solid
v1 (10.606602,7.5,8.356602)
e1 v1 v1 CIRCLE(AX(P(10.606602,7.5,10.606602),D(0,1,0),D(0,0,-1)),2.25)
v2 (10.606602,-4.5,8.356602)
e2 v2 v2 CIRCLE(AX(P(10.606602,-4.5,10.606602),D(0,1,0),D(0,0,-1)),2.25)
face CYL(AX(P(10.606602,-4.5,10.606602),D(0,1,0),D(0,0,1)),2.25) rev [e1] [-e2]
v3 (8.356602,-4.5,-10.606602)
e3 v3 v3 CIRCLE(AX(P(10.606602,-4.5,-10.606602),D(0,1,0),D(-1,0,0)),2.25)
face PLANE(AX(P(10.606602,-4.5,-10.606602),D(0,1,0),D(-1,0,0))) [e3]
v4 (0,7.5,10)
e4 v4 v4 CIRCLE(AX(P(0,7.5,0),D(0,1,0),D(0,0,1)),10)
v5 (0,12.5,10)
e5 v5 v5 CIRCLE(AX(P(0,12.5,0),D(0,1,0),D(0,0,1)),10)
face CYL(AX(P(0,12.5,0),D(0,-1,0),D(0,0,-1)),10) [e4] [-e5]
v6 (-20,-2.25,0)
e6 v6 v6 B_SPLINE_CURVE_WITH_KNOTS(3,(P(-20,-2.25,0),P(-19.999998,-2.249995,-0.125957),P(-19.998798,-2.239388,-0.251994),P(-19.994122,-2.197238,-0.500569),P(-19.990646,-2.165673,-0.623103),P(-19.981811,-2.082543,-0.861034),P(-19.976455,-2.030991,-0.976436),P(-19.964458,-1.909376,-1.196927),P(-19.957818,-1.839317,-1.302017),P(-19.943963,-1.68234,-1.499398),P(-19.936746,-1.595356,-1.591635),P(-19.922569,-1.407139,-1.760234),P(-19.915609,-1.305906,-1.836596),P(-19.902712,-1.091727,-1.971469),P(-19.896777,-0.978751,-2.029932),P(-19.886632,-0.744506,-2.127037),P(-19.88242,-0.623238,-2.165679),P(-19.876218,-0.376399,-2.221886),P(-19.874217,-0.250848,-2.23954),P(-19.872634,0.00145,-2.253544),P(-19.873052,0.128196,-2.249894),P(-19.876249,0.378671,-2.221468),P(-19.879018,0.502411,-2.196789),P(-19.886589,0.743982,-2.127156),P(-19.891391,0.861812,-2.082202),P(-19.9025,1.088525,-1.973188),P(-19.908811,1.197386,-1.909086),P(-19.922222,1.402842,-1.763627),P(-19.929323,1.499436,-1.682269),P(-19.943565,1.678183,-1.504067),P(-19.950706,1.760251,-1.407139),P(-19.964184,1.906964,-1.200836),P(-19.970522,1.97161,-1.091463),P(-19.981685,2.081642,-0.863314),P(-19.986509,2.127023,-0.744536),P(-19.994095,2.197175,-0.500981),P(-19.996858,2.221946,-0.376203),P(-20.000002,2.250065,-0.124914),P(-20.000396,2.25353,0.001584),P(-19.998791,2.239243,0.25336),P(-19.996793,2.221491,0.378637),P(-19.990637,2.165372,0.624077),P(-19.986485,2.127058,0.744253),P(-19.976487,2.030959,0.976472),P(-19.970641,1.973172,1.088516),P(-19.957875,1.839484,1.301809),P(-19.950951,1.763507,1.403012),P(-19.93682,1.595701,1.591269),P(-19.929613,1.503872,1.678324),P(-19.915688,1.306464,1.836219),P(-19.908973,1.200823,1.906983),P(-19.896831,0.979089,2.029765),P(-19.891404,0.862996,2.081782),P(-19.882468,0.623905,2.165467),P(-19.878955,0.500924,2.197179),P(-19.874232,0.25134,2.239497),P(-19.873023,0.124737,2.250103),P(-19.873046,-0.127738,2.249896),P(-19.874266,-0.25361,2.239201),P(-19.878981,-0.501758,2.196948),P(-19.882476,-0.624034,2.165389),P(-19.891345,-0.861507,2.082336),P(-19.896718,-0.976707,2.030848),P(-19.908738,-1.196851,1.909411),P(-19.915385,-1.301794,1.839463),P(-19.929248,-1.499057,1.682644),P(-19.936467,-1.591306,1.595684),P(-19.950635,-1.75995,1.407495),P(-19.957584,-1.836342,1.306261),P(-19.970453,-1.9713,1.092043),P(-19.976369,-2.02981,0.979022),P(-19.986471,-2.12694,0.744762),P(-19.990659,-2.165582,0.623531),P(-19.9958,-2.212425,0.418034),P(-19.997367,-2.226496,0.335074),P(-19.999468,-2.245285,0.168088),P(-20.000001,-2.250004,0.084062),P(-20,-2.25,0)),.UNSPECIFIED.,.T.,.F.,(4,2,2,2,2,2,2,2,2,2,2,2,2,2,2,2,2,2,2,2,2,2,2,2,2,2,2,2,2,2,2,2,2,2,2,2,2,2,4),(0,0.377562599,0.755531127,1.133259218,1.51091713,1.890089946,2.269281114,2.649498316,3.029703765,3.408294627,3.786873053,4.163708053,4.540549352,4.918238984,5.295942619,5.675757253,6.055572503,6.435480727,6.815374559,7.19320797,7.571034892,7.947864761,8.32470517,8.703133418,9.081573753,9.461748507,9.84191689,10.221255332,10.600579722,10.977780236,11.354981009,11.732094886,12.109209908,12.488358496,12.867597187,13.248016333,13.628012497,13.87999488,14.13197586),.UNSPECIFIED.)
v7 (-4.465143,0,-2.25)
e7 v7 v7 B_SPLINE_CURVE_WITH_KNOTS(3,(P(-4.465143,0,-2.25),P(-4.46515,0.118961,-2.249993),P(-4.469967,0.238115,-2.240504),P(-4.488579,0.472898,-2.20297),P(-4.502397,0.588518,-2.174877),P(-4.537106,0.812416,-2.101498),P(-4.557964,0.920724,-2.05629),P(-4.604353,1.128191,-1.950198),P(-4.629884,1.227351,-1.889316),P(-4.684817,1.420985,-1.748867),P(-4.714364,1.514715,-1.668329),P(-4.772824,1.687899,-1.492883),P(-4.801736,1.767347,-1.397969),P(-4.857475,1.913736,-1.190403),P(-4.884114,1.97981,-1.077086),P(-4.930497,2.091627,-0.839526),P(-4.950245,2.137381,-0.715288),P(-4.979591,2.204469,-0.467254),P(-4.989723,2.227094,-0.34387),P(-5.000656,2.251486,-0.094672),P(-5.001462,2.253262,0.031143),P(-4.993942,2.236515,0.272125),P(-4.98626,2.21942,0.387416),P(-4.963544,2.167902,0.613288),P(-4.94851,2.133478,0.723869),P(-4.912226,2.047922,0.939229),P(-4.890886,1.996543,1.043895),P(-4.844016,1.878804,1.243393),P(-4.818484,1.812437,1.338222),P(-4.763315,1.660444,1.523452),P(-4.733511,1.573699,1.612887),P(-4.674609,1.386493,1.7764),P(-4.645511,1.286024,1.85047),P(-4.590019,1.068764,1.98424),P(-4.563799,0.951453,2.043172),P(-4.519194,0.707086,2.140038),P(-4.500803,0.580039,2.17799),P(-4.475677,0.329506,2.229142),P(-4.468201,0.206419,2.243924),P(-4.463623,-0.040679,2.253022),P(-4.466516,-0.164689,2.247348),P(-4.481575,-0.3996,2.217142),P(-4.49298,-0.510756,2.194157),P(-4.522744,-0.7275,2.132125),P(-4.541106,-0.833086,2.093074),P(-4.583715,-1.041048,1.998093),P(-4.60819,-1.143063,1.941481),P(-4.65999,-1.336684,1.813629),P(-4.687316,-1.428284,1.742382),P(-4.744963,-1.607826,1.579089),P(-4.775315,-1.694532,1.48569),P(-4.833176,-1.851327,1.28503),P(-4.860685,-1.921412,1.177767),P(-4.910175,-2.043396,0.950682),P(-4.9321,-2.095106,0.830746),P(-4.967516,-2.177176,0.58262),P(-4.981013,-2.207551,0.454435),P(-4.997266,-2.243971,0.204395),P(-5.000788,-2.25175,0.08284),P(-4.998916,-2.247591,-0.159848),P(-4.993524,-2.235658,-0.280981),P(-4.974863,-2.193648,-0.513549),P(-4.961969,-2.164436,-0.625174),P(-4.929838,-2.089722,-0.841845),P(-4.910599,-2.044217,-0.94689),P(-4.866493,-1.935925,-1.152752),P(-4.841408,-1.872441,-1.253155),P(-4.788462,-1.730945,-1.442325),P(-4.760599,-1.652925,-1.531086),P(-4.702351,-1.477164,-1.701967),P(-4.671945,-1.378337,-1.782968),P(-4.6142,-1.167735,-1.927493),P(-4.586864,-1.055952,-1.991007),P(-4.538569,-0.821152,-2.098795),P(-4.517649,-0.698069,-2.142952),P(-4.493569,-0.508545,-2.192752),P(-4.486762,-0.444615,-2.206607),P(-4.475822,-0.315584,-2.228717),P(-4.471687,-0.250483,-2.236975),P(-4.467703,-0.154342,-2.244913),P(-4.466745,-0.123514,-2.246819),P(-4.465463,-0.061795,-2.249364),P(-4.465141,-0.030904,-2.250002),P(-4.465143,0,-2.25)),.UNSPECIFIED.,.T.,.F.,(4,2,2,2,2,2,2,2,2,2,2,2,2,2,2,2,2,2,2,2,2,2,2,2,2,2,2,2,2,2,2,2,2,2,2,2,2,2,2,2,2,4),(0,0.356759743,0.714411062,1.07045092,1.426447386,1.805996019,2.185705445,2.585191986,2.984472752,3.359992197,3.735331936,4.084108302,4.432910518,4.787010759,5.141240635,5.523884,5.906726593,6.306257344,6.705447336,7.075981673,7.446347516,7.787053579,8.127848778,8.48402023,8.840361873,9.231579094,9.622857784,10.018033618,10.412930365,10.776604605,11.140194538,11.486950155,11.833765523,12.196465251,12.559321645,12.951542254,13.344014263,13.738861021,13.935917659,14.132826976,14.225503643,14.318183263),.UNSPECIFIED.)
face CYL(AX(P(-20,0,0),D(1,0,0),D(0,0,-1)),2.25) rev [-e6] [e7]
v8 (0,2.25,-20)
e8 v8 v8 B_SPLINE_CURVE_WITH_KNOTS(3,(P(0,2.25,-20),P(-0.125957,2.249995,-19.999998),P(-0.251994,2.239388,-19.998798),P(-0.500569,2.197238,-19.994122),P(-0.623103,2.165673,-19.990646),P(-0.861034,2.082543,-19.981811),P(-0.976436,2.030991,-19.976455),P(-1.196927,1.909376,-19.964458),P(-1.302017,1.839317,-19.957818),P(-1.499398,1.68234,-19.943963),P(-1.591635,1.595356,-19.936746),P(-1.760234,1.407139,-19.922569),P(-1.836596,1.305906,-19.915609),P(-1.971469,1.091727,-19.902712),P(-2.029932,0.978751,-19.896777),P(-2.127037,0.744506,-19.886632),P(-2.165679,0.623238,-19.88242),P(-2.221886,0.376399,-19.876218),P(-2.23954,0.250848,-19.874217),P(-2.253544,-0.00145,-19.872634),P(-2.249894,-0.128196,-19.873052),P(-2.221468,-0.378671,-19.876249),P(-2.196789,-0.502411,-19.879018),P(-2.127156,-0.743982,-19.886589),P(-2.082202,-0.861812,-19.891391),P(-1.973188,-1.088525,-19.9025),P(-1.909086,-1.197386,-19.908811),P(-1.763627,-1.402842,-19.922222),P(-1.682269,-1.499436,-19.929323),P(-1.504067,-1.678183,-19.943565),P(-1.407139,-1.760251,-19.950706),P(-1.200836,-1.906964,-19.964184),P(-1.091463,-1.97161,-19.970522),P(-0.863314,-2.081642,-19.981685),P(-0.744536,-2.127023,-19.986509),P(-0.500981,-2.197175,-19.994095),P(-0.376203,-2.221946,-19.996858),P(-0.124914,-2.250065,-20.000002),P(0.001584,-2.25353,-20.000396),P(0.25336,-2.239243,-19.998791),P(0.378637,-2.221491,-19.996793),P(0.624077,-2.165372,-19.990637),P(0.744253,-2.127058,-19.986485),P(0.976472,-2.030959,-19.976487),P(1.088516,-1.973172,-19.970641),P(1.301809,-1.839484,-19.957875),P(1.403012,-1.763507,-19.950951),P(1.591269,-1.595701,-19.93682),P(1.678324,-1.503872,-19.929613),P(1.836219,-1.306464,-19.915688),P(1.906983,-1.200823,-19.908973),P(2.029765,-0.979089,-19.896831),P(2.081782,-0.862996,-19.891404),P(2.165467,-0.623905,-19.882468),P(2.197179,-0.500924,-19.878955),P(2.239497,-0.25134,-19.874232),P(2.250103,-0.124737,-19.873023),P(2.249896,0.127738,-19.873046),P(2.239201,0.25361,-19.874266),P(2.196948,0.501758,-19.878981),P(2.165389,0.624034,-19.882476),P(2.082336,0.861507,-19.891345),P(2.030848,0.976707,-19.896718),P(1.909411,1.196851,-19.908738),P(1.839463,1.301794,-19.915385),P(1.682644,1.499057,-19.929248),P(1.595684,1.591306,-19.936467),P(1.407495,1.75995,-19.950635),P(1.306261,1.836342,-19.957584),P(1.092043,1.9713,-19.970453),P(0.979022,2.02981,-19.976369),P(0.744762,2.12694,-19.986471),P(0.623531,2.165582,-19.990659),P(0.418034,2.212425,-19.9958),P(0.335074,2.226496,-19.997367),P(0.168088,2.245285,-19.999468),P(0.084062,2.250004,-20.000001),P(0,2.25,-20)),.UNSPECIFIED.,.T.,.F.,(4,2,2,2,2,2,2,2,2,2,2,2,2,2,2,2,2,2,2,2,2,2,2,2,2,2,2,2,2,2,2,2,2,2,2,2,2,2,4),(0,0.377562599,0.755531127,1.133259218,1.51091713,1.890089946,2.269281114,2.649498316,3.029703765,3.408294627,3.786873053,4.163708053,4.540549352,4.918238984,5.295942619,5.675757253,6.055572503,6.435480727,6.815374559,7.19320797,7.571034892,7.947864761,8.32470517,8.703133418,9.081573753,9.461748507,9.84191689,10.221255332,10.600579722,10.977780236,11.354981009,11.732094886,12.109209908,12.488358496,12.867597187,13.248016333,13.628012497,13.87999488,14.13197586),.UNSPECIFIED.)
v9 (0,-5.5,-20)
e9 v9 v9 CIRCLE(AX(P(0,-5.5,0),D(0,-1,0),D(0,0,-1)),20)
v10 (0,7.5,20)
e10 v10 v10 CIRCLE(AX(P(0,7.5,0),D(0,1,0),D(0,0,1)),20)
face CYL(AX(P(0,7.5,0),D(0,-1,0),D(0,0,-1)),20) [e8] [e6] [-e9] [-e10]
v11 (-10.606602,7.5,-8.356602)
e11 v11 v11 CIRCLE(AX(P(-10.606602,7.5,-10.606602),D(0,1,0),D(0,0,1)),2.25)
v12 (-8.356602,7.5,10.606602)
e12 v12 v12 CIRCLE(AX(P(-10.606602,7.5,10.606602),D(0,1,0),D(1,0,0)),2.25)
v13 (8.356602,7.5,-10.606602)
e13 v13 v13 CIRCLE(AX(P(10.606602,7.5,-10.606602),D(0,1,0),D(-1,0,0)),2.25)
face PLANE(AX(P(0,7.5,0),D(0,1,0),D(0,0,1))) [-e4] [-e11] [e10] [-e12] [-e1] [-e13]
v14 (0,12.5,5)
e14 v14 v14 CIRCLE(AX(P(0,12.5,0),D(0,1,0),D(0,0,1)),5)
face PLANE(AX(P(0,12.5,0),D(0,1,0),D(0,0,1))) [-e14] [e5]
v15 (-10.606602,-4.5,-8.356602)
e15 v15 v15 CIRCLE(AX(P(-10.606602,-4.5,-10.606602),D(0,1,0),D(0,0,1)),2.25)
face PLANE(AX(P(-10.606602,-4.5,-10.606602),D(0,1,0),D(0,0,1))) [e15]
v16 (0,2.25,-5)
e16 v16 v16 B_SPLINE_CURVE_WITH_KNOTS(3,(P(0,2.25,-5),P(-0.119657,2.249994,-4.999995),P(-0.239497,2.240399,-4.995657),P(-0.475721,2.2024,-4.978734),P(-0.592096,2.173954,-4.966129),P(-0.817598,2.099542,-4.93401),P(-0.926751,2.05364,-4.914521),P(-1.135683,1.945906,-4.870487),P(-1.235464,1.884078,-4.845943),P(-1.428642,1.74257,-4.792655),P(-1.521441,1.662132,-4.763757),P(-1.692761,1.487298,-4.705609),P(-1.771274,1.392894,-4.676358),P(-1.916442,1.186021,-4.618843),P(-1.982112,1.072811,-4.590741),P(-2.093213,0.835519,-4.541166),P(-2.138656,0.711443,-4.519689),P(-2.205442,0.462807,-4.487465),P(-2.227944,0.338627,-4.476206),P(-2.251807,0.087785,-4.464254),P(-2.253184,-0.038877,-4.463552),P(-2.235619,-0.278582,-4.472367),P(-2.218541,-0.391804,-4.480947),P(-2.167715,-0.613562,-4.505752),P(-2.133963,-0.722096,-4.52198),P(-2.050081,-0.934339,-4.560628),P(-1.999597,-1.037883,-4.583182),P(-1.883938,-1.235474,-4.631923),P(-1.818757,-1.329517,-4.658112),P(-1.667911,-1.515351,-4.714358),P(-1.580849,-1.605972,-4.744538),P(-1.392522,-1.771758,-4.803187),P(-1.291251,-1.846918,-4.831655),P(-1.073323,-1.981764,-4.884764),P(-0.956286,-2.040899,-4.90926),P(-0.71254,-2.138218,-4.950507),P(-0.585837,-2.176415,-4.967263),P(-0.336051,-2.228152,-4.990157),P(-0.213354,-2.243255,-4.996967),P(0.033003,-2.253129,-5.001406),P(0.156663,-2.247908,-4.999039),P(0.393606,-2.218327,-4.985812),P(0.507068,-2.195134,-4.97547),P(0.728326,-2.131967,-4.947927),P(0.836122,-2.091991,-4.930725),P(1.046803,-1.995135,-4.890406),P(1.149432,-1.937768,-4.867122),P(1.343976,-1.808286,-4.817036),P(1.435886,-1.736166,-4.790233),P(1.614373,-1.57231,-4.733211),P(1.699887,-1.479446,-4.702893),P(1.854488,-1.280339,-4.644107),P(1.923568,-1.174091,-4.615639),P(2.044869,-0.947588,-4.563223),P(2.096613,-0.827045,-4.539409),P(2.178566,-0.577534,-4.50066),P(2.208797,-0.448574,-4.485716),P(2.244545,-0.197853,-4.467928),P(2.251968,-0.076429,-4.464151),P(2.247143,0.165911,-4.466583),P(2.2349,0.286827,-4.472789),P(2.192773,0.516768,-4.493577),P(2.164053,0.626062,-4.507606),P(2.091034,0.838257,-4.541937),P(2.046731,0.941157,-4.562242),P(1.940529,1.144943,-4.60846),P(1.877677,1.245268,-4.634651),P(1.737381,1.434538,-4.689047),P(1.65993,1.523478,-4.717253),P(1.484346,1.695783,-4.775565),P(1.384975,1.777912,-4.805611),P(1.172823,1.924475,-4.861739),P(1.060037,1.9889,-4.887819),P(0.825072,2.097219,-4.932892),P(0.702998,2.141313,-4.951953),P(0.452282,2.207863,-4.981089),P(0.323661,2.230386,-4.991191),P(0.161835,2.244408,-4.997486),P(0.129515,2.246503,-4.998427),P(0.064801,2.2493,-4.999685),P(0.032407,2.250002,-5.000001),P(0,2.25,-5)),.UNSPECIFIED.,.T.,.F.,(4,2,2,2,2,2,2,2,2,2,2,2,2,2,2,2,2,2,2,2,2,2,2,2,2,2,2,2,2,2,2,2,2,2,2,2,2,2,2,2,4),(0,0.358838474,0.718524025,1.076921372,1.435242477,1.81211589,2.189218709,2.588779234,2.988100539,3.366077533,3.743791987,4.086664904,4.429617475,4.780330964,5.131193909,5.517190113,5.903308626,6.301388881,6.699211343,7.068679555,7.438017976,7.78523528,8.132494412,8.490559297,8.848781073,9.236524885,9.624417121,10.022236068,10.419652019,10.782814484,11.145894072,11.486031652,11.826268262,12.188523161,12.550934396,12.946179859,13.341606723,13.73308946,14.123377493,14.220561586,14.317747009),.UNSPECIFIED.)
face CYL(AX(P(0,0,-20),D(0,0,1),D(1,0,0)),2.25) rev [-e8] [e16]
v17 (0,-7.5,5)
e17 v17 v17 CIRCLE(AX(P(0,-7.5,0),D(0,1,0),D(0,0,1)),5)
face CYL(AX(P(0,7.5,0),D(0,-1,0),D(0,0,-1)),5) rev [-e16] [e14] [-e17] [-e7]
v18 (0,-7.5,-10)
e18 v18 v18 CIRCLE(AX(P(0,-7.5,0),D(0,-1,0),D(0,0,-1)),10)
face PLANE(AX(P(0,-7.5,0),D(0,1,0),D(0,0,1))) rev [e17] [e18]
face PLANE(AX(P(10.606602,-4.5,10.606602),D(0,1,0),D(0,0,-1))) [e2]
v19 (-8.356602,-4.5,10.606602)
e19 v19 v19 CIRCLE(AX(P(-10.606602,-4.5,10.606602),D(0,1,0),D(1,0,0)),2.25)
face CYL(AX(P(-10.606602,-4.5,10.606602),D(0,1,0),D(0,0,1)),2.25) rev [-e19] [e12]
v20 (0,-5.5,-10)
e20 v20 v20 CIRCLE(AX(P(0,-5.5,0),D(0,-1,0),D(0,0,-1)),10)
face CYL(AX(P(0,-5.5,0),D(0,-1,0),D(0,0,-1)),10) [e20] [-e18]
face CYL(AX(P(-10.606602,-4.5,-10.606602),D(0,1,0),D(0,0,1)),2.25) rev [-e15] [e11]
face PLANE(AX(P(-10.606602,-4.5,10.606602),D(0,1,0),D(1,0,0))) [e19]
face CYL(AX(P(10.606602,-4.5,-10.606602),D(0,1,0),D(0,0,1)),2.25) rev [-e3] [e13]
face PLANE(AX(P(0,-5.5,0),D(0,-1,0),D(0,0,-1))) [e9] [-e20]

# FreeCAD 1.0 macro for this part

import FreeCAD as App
import Part
import Sketcher

V = App.Vector

doc = App.newDocument("Part")
body = doc.addObject("PartDesign::Body", "Body")

# Sketch on XZ plane
sketch1 = body.newObject("Sketcher::SketchObject", "Sketch")
sketch1.AttachmentSupport = (doc.getObject("XZ_Plane"), [""])
sketch1.MapMode = "FlatFace"
sketch1.addGeometry([
    Part.Circle(V(0, 0, 0), V(0, 0, 1), 20),
    Part.Circle(V(0, 0, 0), V(0, 0, 1), 5),
], False)
sketch1.addConstraint([
    Sketcher.Constraint("Coincident", 0, 3, -1, 1),
    Sketcher.Constraint("Coincident", 1, 3, -1, 1),
    Sketcher.Constraint("Diameter", 0, 40.0),
    Sketcher.Constraint("Diameter", 1, 10.0),
])
pad1 = body.newObject("PartDesign::Pad", "Pad")
pad1.Profile = sketch1
pad1.Length = 15
pad1.Midplane = True

# Sketch on XZ plane
sketch2 = body.newObject("Sketcher::SketchObject", "Sketch001")
sketch2.AttachmentSupport = (doc.getObject("XZ_Plane"), [""])
sketch2.MapMode = "FlatFace"
sketch2.AttachmentOffset = App.Placement(V(0, 0, -7.5), App.Rotation())
sketch2.addGeometry(Part.Circle(V(-10.6, -10.6, 0), V(0, 0, 1), 2.2), False)
sketch2.addConstraint([
    Sketcher.Constraint("Diameter", 0, 4.5),
    Sketcher.Constraint("DistanceX", 0, 3, -1, 1, 10.606602),
    Sketcher.Constraint("DistanceY", 0, 3, -1, 1, 10.606602),
])
pocket1 = body.newObject("PartDesign::Pocket", "Pocket")
pocket1.Profile = sketch2
pocket1.Length = 12
pocket1.Reversed = True
doc.recompute()

polarpattern = body.newObject("PartDesign::PolarPattern", "PolarPattern")
polarpattern.Originals = [pocket1]
polarpattern.Axis = (doc.getObject("Y_Axis"), [""])
polarpattern.Angle = 360
polarpattern.Occurrences = 4
body.Tip = polarpattern

# Sketch on XY plane
sketch3 = body.newObject("Sketcher::SketchObject", "Sketch002")
sketch3.AttachmentSupport = (doc.getObject("XY_Plane"), [""])
sketch3.MapMode = "FlatFace"
sketch3.addGeometry(Part.Circle(V(0, 0, 0), V(0, 0, 1), 2.2), False)
sketch3.addConstraint([
    Sketcher.Constraint("Coincident", 0, 3, -1, 1),
    Sketcher.Constraint("Diameter", 0, 4.5),
])
pocket2 = body.newObject("PartDesign::Pocket", "Pocket001")
pocket2.Profile = sketch3
pocket2.Type = "ThroughAll"
doc.recompute()

polarpattern2 = body.newObject("PartDesign::PolarPattern", "PolarPattern001")
polarpattern2.Originals = [pocket2]
polarpattern2.Axis = (doc.getObject("Y_Axis"), [""])
polarpattern2.Angle = 90
polarpattern2.Occurrences = 2
body.Tip = polarpattern2

# Sketch on XZ plane
sketch4 = body.newObject("Sketcher::SketchObject", "Sketch003")
sketch4.AttachmentSupport = (doc.getObject("XZ_Plane"), [""])
sketch4.MapMode = "FlatFace"
sketch4.AttachmentOffset = App.Placement(V(0, 0, 7.5), App.Rotation())
sketch4.addGeometry([
    Part.Circle(V(0, 0, 0), V(0, 0, 1), 24),
    Part.Circle(V(0, 0, 0), V(0, 0, 1), 10),
], False)
sketch4.addConstraint([
    Sketcher.Constraint("Coincident", 0, 3, -1, 1),
    Sketcher.Constraint("Coincident", 1, 3, -1, 1),
    Sketcher.Constraint("Diameter", 1, 20.0),
    Sketcher.Constraint("Diameter", 0, 47.416934),
])
pocket3 = body.newObject("PartDesign::Pocket", "Pocket002")
pocket3.Profile = sketch4
pocket3.Length = 2

# Sketch on XZ plane
sketch5 = body.newObject("Sketcher::SketchObject", "Sketch004")
sketch5.AttachmentSupport = (doc.getObject("XZ_Plane"), [""])
sketch5.MapMode = "FlatFace"
sketch5.AttachmentOffset = App.Placement(V(0, 0, -7.5), App.Rotation())
sketch5.addGeometry([
    Part.Circle(V(0, 0, 0), V(0, 0, 1), 10),
    Part.Circle(V(0, 0, 0), V(0, 0, 1), 5),
], False)
sketch5.addConstraint([
    Sketcher.Constraint("Coincident", 0, 3, -1, 1),
    Sketcher.Constraint("Coincident", 1, 3, -1, 1),
    Sketcher.Constraint("Diameter", 0, 20.0),
    Sketcher.Constraint("Diameter", 1, 10.0),
])
pad2 = body.newObject("PartDesign::Pad", "Pad001")
pad2.Profile = sketch5
pad2.Length = 5
pad2.Reversed = True

doc.recompute()
